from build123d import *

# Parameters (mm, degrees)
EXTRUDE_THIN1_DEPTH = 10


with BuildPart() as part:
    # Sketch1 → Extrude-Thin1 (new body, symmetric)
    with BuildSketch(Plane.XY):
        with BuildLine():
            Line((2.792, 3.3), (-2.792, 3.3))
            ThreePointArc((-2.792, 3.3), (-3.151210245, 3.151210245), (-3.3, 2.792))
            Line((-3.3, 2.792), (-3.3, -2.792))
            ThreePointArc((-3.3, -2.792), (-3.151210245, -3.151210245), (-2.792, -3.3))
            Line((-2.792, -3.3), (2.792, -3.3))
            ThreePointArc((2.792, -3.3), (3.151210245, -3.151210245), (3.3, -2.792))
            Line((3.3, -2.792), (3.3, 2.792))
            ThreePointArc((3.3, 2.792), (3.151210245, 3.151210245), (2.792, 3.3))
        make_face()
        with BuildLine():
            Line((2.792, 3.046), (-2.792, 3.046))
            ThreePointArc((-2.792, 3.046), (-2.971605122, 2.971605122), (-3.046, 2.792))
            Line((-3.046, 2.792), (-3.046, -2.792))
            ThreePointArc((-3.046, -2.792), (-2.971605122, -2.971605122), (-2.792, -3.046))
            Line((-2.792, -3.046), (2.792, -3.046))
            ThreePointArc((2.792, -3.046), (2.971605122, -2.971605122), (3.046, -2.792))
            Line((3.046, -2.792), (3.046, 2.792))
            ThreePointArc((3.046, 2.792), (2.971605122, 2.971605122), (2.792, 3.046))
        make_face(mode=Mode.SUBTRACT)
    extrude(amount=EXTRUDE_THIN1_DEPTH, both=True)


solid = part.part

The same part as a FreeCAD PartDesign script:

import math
import FreeCAD as App
import Part
import Sketcher
Q = App.Units.Quantity

doc = App.newDocument("Part")
body = doc.addObject("PartDesign::Body", "Body")

# Sketch on XY plane
sketch1 = doc.addObject("Sketcher::SketchObject", "Sketch")
body.addObject(sketch1)
sketch1.AttachmentSupport = (doc.XY_Plane, [""])
sketch1.MapMode = "FlatFace"
sketch1.addGeometry([
    Part.LineSegment(App.Vector(2.79, 3.3, 0), App.Vector(-2.79, 3.3, 0)),  # 0
    Part.ArcOfCircle(Part.Circle(App.Vector(-2.79, 2.79, 0), App.Vector(0, 0, 1), 0.51), math.radians(90), math.radians(180)),  # 1
    Part.LineSegment(App.Vector(-3.3, 2.79, 0), App.Vector(-3.3, -2.79, 0)),  # 2
    Part.ArcOfCircle(Part.Circle(App.Vector(-2.79, -2.79, 0), App.Vector(0, 0, 1), 0.51), math.radians(180), math.radians(270)),  # 3
    Part.LineSegment(App.Vector(-2.79, -3.3, 0), App.Vector(2.79, -3.3, 0)),  # 4
    Part.ArcOfCircle(Part.Circle(App.Vector(2.79, -2.79, 0), App.Vector(0, 0, 1), 0.51), math.radians(-90), math.radians(0)),  # 5
    Part.LineSegment(App.Vector(3.3, -2.79, 0), App.Vector(3.3, 2.79, 0)),  # 6
    Part.ArcOfCircle(Part.Circle(App.Vector(2.79, 2.79, 0), App.Vector(0, 0, 1), 0.51), math.radians(0), math.radians(90)),  # 7
    Part.LineSegment(App.Vector(-2.79, 3.05, 0), App.Vector(2.79, 3.05, 0)),  # 8
    Part.ArcOfCircle(Part.Circle(App.Vector(2.79, 2.79, 0), App.Vector(0, 0, 1), 0.25), math.radians(0), math.radians(90)),  # 9
    Part.LineSegment(App.Vector(3.05, 2.79, 0), App.Vector(3.05, -2.79, 0)),  # 10
    Part.ArcOfCircle(Part.Circle(App.Vector(2.79, -2.79, 0), App.Vector(0, 0, 1), 0.25), math.radians(-90), math.radians(0)),  # 11
    Part.LineSegment(App.Vector(2.79, -3.05, 0), App.Vector(-2.79, -3.05, 0)),  # 12
    Part.ArcOfCircle(Part.Circle(App.Vector(-2.79, -2.79, 0), App.Vector(0, 0, 1), 0.25), math.radians(-180), math.radians(-90)),  # 13
    Part.LineSegment(App.Vector(-3.05, -2.79, 0), App.Vector(-3.05, 2.79, 0)),  # 14
    Part.ArcOfCircle(Part.Circle(App.Vector(-2.79, 2.79, 0), App.Vector(0, 0, 1), 0.25), math.radians(90), math.radians(180)),  # 15
], False)
sketch1.addConstraint([
    Sketcher.Constraint("Tangent", 0, 2, 1, 1),
    Sketcher.Constraint("Tangent", 1, 2, 2, 1),
    Sketcher.Constraint("Tangent", 2, 2, 3, 1),
    Sketcher.Constraint("Tangent", 3, 2, 4, 1),
    Sketcher.Constraint("Tangent", 4, 2, 5, 1),
    Sketcher.Constraint("Tangent", 5, 2, 6, 1),
    Sketcher.Constraint("Tangent", 6, 2, 7, 1),
    Sketcher.Constraint("Tangent", 7, 2, 0, 1),
    Sketcher.Constraint("Tangent", 8, 2, 9, 2),
    Sketcher.Constraint("Tangent", 9, 1, 10, 1),
    Sketcher.Constraint("Tangent", 10, 2, 11, 2),
    Sketcher.Constraint("Tangent", 11, 1, 12, 1),
    Sketcher.Constraint("Tangent", 12, 2, 13, 2),
    Sketcher.Constraint("Tangent", 13, 1, 14, 1),
    Sketcher.Constraint("Tangent", 14, 2, 15, 2),
    Sketcher.Constraint("Tangent", 15, 1, 8, 1),
    Sketcher.Constraint("Horizontal", 0),
    Sketcher.Constraint("Vertical", 2),
    Sketcher.Constraint("Horizontal", 4),
    Sketcher.Constraint("Vertical", 6),
    Sketcher.Constraint("Horizontal", 8),
    Sketcher.Constraint("Vertical", 10),
    Sketcher.Constraint("Horizontal", 12),
    Sketcher.Constraint("Vertical", 14),
    Sketcher.Constraint("Coincident", 9, 3, 7, 3),
    Sketcher.Constraint("Coincident", 11, 3, 5, 3),
    Sketcher.Constraint("Coincident", 13, 3, 3, 3),
    Sketcher.Constraint("Equal", 1, 3),
    Sketcher.Constraint("Equal", 3, 5),
    Sketcher.Constraint("Equal", 5, 7),
    Sketcher.Constraint("Equal", 13, 15),
    Sketcher.Constraint("Symmetric", 1, 3, 5, 3, -1, 1),
    Sketcher.Constraint("Equal", 12, 2),
    Sketcher.Constraint("Radius", 1, Q("0.02 in")),
    Sketcher.Constraint("Radius", 9, Q("0.01 in")),
    Sketcher.Constraint("DistanceX", 0, 2, 0, 1, Q("5.584 mm")),
])
pad1 = doc.addObject("PartDesign::Pad", "Pad")
body.addObject(pad1)
pad1.Profile = sketch1
pad1.Length = 20
pad1.Midplane = True

doc.recompute()
